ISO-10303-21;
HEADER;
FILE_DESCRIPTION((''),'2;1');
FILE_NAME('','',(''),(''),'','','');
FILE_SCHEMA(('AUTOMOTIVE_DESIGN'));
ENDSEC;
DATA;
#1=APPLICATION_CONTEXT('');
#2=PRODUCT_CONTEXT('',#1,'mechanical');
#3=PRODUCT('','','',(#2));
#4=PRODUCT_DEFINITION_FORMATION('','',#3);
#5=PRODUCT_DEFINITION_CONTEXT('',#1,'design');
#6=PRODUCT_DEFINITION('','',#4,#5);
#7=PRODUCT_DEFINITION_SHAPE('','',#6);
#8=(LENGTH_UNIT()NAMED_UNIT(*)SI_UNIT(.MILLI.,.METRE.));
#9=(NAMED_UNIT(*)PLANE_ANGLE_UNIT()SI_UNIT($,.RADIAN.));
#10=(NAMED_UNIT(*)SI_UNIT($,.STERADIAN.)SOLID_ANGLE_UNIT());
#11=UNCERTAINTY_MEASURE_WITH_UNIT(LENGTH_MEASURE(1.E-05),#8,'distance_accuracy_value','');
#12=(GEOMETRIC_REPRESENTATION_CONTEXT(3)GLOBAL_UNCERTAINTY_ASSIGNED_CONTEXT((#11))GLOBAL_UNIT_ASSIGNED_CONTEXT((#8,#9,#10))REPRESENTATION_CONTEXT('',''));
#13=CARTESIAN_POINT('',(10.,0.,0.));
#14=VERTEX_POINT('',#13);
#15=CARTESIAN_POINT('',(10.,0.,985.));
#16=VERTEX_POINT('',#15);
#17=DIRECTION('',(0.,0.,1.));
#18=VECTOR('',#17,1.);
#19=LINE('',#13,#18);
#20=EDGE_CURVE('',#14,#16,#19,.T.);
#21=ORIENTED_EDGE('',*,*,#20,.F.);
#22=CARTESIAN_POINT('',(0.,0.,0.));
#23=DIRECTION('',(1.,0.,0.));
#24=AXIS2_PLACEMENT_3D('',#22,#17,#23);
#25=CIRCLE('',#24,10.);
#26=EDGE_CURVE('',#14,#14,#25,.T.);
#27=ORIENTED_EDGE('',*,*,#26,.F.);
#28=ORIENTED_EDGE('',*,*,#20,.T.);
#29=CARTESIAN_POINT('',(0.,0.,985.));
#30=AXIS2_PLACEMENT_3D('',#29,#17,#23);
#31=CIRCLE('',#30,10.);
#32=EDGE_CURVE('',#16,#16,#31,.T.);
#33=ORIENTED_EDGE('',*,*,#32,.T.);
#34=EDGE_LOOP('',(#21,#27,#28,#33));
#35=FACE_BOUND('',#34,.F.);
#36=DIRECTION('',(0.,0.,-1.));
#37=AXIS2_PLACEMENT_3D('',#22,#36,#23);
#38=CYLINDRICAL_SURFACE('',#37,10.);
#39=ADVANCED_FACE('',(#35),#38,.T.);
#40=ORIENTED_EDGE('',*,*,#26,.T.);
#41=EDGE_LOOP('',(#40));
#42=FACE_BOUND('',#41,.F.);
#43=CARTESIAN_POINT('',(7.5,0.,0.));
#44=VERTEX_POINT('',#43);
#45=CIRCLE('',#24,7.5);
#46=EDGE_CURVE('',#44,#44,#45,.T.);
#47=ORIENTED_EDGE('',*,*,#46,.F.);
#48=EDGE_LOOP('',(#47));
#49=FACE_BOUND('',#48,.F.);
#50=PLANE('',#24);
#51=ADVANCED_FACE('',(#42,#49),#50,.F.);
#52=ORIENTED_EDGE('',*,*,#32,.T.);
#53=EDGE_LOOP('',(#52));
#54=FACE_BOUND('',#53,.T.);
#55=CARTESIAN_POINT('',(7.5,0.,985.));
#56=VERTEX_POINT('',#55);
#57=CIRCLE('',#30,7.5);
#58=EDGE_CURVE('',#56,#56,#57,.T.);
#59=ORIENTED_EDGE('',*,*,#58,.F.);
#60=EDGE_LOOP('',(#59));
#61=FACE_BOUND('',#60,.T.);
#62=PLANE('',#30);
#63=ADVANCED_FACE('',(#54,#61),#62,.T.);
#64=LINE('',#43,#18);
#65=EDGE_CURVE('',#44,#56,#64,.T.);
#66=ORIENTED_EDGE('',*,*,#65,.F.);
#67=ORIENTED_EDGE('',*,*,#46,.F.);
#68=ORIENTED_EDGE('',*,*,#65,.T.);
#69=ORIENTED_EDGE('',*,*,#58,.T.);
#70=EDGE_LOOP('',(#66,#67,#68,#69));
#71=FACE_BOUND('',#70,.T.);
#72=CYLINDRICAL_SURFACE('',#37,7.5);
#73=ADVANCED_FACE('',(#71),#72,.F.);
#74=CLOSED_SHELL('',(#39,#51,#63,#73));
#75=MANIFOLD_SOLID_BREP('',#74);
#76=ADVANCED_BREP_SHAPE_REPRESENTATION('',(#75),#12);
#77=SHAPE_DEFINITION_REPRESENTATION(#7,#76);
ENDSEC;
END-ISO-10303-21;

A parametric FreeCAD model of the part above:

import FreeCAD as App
import Part
import Sketcher
Q = App.Units.Quantity

doc = App.newDocument("Part")
body = doc.addObject("PartDesign::Body", "Body")

sketch1 = body.newObject("Sketcher::SketchObject", "Sketch")
sketch1.AttachmentSupport = (doc.getObject("XY_Plane"), [""])
sketch1.MapMode = "FlatFace"
sketch1.addGeometry(Part.Circle(App.Vector(0, 0, 0), App.Vector(0, 0, 1), 10), False)
sketch1.addGeometry(Part.Circle(App.Vector(0, 0, 0), App.Vector(0, 0, 1), 8), False)
sketch1.addConstraint(Sketcher.Constraint("Coincident", 0, 3, -1, 1))
sketch1.addConstraint(Sketcher.Constraint("Coincident", 1, 3, -1, 1))
sketch1.addConstraint(Sketcher.Constraint("Diameter", 0, Q("20 mm")))
sketch1.addConstraint(Sketcher.Constraint("Diameter", 1, Q("15 mm")))
pad1 = body.newObject("PartDesign::Pad", "Pad")
pad1.Profile = sketch1
pad1.Length = 985
body2 = doc.addObject("PartDesign::Body", "Body001")

sketch2 = body2.newObject("Sketcher::SketchObject", "Sketch001")
sketch2.AttachmentSupport = (doc.getObject("XY_Plane001"), [""])
sketch2.MapMode = "FlatFace"
sketch2.addGeometry(Part.Circle(App.Vector(149, -45, 0), App.Vector(0, 0, 1), 10), False)
sketch2.addGeometry(Part.Circle(App.Vector(149, -45, 0), App.Vector(0, 0, 1), 8), False)
sketch2.addConstraint(Sketcher.Constraint("Coincident", 1, 3, 0, 3))
sketch2.addConstraint(Sketcher.Constraint("Diameter", 0, Q("20 mm")))
sketch2.addConstraint(Sketcher.Constraint("Diameter", 1, Q("15 mm")))
sketch2.addConstraint(Sketcher.Constraint("DistanceY", 0, 3, -1, 1, Q("44.897571 mm")))
sketch2.addConstraint(Sketcher.Constraint("DistanceX", -1, 1, 0, 3, Q("149.209142 mm")))
pad2 = body2.newObject("PartDesign::Pad", "Pad001")
pad2.Profile = sketch2
pad2.Length = 1005
body2.Visibility = False

doc.recompute()
